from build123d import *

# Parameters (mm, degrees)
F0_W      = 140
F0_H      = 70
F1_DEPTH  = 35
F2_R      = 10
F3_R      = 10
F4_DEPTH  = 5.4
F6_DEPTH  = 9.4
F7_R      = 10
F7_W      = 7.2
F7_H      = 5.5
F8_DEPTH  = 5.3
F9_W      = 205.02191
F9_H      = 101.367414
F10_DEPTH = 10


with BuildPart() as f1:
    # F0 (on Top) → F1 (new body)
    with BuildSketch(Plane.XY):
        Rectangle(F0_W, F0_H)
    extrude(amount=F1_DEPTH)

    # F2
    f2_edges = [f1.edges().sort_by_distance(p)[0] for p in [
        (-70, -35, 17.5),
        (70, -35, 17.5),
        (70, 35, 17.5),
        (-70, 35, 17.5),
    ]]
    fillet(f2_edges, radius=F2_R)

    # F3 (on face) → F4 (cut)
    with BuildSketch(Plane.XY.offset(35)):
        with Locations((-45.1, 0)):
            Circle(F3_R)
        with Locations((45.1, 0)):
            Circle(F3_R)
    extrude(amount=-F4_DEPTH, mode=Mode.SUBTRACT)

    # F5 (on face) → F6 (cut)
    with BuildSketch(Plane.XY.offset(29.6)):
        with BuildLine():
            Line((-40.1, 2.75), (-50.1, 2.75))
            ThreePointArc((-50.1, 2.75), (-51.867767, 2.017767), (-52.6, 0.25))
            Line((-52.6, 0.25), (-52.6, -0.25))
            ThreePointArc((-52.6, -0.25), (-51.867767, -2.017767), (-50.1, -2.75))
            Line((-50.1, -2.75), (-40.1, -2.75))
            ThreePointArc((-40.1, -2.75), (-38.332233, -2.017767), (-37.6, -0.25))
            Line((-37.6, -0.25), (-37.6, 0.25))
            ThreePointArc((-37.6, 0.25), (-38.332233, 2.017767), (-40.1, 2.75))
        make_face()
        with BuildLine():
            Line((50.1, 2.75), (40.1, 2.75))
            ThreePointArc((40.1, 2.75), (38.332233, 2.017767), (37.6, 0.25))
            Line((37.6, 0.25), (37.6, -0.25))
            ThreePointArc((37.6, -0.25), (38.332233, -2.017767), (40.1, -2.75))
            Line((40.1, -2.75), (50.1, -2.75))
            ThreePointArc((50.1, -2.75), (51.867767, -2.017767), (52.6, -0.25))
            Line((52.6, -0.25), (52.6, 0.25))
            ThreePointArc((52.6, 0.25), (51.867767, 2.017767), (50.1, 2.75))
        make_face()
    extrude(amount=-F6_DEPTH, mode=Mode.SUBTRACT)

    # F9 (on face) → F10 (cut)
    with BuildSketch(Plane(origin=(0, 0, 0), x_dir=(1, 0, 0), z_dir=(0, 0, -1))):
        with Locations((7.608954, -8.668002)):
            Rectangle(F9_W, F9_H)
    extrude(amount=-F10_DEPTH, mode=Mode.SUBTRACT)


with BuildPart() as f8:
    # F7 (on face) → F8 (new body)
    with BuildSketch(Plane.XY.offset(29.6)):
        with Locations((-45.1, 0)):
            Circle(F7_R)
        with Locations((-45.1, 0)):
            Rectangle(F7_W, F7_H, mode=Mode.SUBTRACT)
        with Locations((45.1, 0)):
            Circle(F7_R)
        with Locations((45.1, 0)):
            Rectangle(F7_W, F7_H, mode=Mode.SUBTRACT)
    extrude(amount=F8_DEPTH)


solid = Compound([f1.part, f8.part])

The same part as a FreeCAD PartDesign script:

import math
import FreeCAD as App
import Part
import Sketcher
Q = App.Units.Quantity


def edges_at(feature, points):
    """Names of the edges that pass closest to the given points."""
    edges = feature.Shape.Edges
    near = lambda p: min(range(len(edges)), key=lambda i: edges[i].distToShape(Part.Vertex(*p))[0])
    return sorted({f"Edge{near(p) + 1}" for p in points})


def add_polygon(sketch, points):
    """Adds a closed chain of lines whose ends are joined by coincident constraints."""
    first, n = sketch.GeometryCount, len(points)
    for a, b in zip(points, points[1:] + points[:1]):
        sketch.addGeometry(Part.LineSegment(App.Vector(*a, 0), App.Vector(*b, 0)), False)
    for i in range(n):
        sketch.addConstraint(Sketcher.Constraint("Coincident", first + i, 2, first + (i + 1) % n, 1))

doc = App.newDocument("Part")
body = doc.addObject("PartDesign::Body", "Body")

# Sketch on XY plane
sketch1 = body.newObject("Sketcher::SketchObject", "Sketch")
sketch1.AttachmentSupport = (doc.getObject("XY_Plane"), [""])
sketch1.MapMode = "FlatFace"
add_polygon(sketch1, [(-70, 35), (-70, -35), (70, -35), (70, 35)])  # lines 0-3
sketch1.addConstraint([
    Sketcher.Constraint("Vertical", 0),
    Sketcher.Constraint("Horizontal", 1),
    Sketcher.Constraint("Vertical", 2),
    Sketcher.Constraint("Horizontal", 3),
    Sketcher.Constraint("Symmetric", 0, 2, 2, 2, -1, 1),
    Sketcher.Constraint("DistanceX", 1, 1, 1, 2, Q("140 mm")),
    Sketcher.Constraint("DistanceY", 0, 2, 0, 1, Q("70 mm")),
])
pad1 = body.newObject("PartDesign::Pad", "Pad")
pad1.Profile = sketch1
pad1.Length = 35
doc.recompute()

fillet = body.newObject("PartDesign::Fillet", "Fillet")
fillet.Base = (pad1, edges_at(pad1, [
    (-70, -35, 17.5),
    (70, -35, 17.5),
    (70, 35, 17.5),
    (-70, 35, 17.5),
]))
fillet.Radius = 10

# Sketch on XY plane
sketch2 = body.newObject("Sketcher::SketchObject", "Sketch001")
sketch2.AttachmentSupport = (doc.getObject("XY_Plane"), [""])
sketch2.MapMode = "FlatFace"
sketch2.AttachmentOffset = App.Placement(App.Vector(0, 0, 35), App.Rotation())
sketch2.addGeometry([
    Part.Circle(App.Vector(-45, 0, 0), App.Vector(0, 0, 1), 10),
    Part.Circle(App.Vector(45, 0, 0), App.Vector(0, 0, 1), 10),
], False)
sketch2.addConstraint([
    Sketcher.Constraint("Equal", 0, 1),
    Sketcher.Constraint("Symmetric", 0, 3, 1, 3, -1, 1),
    Sketcher.Constraint("PointOnObject", 0, 3, -1),
    Sketcher.Constraint("Diameter", 0, Q("20 mm")),
    Sketcher.Constraint("DistanceX", 0, 3, -1, 1, Q("45.1 mm")),
])
pocket1 = body.newObject("PartDesign::Pocket", "Pocket")
pocket1.Profile = sketch2
pocket1.Length = 5.4

# Sketch on XY plane
sketch3 = body.newObject("Sketcher::SketchObject", "Sketch002")
sketch3.AttachmentSupport = (doc.getObject("XY_Plane"), [""])
sketch3.MapMode = "FlatFace"
sketch3.AttachmentOffset = App.Placement(App.Vector(0, 0, 29.6), App.Rotation())
sketch3.addGeometry([
    Part.LineSegment(App.Vector(-40.1, 2.8, 0), App.Vector(-50.1, 2.8, 0)),  # 0
    Part.ArcOfCircle(Part.Circle(App.Vector(-50.1, 0.3, 0), App.Vector(0, 0, 1), 2.5), math.radians(90), math.radians(180)),  # 1
    Part.LineSegment(App.Vector(-52.6, 0.2, 0), App.Vector(-52.6, -0.2, 0)),  # 2
    Part.ArcOfCircle(Part.Circle(App.Vector(-50.1, -0.3, 0), App.Vector(0, 0, 1), 2.5), math.radians(180), math.radians(270)),  # 3
    Part.LineSegment(App.Vector(-50.1, -2.8, 0), App.Vector(-40.1, -2.8, 0)),  # 4
    Part.ArcOfCircle(Part.Circle(App.Vector(-40.1, -0.3, 0), App.Vector(0, 0, 1), 2.5), math.radians(-90), math.radians(0)),  # 5
    Part.LineSegment(App.Vector(-37.6, -0.2, 0), App.Vector(-37.6, 0.2, 0)),  # 6
    Part.ArcOfCircle(Part.Circle(App.Vector(-40.1, 0.3, 0), App.Vector(0, 0, 1), 2.5), math.radians(0), math.radians(90)),  # 7
    Part.LineSegment(App.Vector(50.1, 2.8, 0), App.Vector(40.1, 2.8, 0)),  # 8
    Part.ArcOfCircle(Part.Circle(App.Vector(40.1, 0.3, 0), App.Vector(0, 0, 1), 2.5), math.radians(90), math.radians(180)),  # 9
    Part.LineSegment(App.Vector(37.6, 0.2, 0), App.Vector(37.6, -0.2, 0)),  # 10
    Part.ArcOfCircle(Part.Circle(App.Vector(40.1, -0.3, 0), App.Vector(0, 0, 1), 2.5), math.radians(180), math.radians(270)),  # 11
    Part.LineSegment(App.Vector(40.1, -2.8, 0), App.Vector(50.1, -2.8, 0)),  # 12
    Part.ArcOfCircle(Part.Circle(App.Vector(50.1, -0.3, 0), App.Vector(0, 0, 1), 2.5), math.radians(-90), math.radians(0)),  # 13
    Part.LineSegment(App.Vector(52.6, -0.2, 0), App.Vector(52.6, 0.2, 0)),  # 14
    Part.ArcOfCircle(Part.Circle(App.Vector(50.1, 0.3, 0), App.Vector(0, 0, 1), 2.5), math.radians(0), math.radians(90)),  # 15
], False)
sketch3.addConstraint([
    Sketcher.Constraint("Tangent", 0, 2, 1, 1),
    Sketcher.Constraint("Tangent", 1, 2, 2, 1),
    Sketcher.Constraint("Tangent", 2, 2, 3, 1),
    Sketcher.Constraint("Tangent", 3, 2, 4, 1),
    Sketcher.Constraint("Tangent", 4, 2, 5, 1),
    Sketcher.Constraint("Tangent", 5, 2, 6, 1),
    Sketcher.Constraint("Tangent", 6, 2, 7, 1),
    Sketcher.Constraint("Tangent", 7, 2, 0, 1),
    Sketcher.Constraint("Tangent", 8, 2, 9, 1),
    Sketcher.Constraint("Tangent", 9, 2, 10, 1),
    Sketcher.Constraint("Tangent", 10, 2, 11, 1),
    Sketcher.Constraint("Tangent", 11, 2, 12, 1),
    Sketcher.Constraint("Tangent", 12, 2, 13, 1),
    Sketcher.Constraint("Tangent", 13, 2, 14, 1),
    Sketcher.Constraint("Tangent", 14, 2, 15, 1),
    Sketcher.Constraint("Tangent", 15, 2, 8, 1),
    Sketcher.Constraint("Horizontal", 0),
    Sketcher.Constraint("Vertical", 2),
    Sketcher.Constraint("Horizontal", 4),
    Sketcher.Constraint("Vertical", 6),
    Sketcher.Constraint("Horizontal", 8),
    Sketcher.Constraint("Vertical", 10),
    Sketcher.Constraint("Horizontal", 12),
    Sketcher.Constraint("Vertical", 14),
    Sketcher.Constraint("Equal", 1, 3),
    Sketcher.Constraint("Equal", 3, 5),
    Sketcher.Constraint("Equal", 5, 7),
    Sketcher.Constraint("Equal", 7, 9),
    Sketcher.Constraint("Equal", 9, 11),
    Sketcher.Constraint("Equal", 11, 13),
    Sketcher.Constraint("Equal", 13, 15),
    Sketcher.Constraint("Symmetric", 5, 3, 9, 3, -1, 1),
    Sketcher.Constraint("Symmetric", 1, 3, 13, 3, -1, 1),
    Sketcher.Constraint("Horizontal", 7, 3, 9, 3),
    Sketcher.Constraint("Radius", 1, Q("2.5 mm")),
    Sketcher.Constraint("DistanceX", 0, 2, 0, 1, Q("10 mm")),
    Sketcher.Constraint("DistanceY", 2, 2, 2, 1, Q("0.5 mm")),
    Sketcher.Constraint("DistanceX", 1, 3, -1, 1, Q("50.1 mm")),
])
pocket2 = body.newObject("PartDesign::Pocket", "Pocket001")
pocket2.Profile = sketch3
pocket2.Length = 9.4

# Sketch on XY plane
sketch4 = body.newObject("Sketcher::SketchObject", "Sketch003")
sketch4.AttachmentSupport = (doc.getObject("XY_Plane"), [""])
sketch4.MapMode = "FlatFace"
add_polygon(sketch4, [(-95, -42), (-95, 59), (110, 59), (110, -42)])  # lines 0-3
sketch4.addConstraint([
    Sketcher.Constraint("Vertical", 0),
    Sketcher.Constraint("Horizontal", 1),
    Sketcher.Constraint("Vertical", 2),
    Sketcher.Constraint("Horizontal", 3),
    Sketcher.Constraint("DistanceX", 0, 2, -1, 1, Q("94.902001 mm")),
    Sketcher.Constraint("DistanceX", 1, 1, 1, 2, Q("205.02191 mm")),
    Sketcher.Constraint("DistanceY", 0, 1, 0, 2, Q("101.367414 mm")),
    Sketcher.Constraint("DistanceY", -1, 1, 0, 2, Q("59.351709 mm")),
])
pocket3 = body.newObject("PartDesign::Pocket", "Pocket002")
pocket3.Profile = sketch4
pocket3.Length = 10
pocket3.Reversed = True
body2 = doc.addObject("PartDesign::Body", "Body001")
body2.AllowCompound = True

# Sketch on XY plane
sketch5 = body2.newObject("Sketcher::SketchObject", "Sketch004")
sketch5.AttachmentSupport = (doc.getObject("XY_Plane001"), [""])
sketch5.MapMode = "FlatFace"
sketch5.AttachmentOffset = App.Placement(App.Vector(0, 0, 29.6), App.Rotation())
sketch5.addGeometry(Part.Circle(App.Vector(-45, 0, 0), App.Vector(0, 0, 1), 10), False)  # 0
add_polygon(sketch5, [(-42, -3), (-49, -3), (-49, 3), (-42, 3)])  # lines 1-4
sketch5.addGeometry(Part.Circle(App.Vector(45, 0, 0), App.Vector(0, 0, 1), 10), False)  # 5
add_polygon(sketch5, [(49, -3), (42, -3), (42, 3), (49, 3)])  # lines 6-9
sketch5.addConstraint([
    Sketcher.Constraint("Horizontal", 1),
    Sketcher.Constraint("Vertical", 2),
    Sketcher.Constraint("Horizontal", 3),
    Sketcher.Constraint("Vertical", 4),
    Sketcher.Constraint("Horizontal", 6),
    Sketcher.Constraint("Vertical", 7),
    Sketcher.Constraint("Horizontal", 8),
    Sketcher.Constraint("Vertical", 9),
    Sketcher.Constraint("Equal", 0, 5),
    Sketcher.Constraint("Symmetric", 0, 3, 5, 3, -1, 1),
    Sketcher.Constraint("Symmetric", 3, 2, 6, 2, -1, 1),
    Sketcher.Constraint("Symmetric", 1, 2, 8, 2, -1, 1),
    Sketcher.Constraint("PointOnObject", 0, 3, -1),
    Sketcher.Constraint("Horizontal", 4, 2, 6, 2),
    Sketcher.Constraint("Diameter", 0, Q("20 mm")),
    Sketcher.Constraint("DistanceX", 1, 2, 1, 1, Q("7.2 mm")),
    Sketcher.Constraint("DistanceY", 2, 1, 2, 2, Q("5.5 mm")),
    Sketcher.Constraint("DistanceX", 4, 2, 6, 2, Q("83 mm")),
    Sketcher.Constraint("DistanceX", 0, 3, -1, 1, Q("45.1 mm")),
])
pad2 = body2.newObject("PartDesign::Pad", "Pad001")
pad2.Profile = sketch5
pad2.Length = 5.3

doc.recompute()
